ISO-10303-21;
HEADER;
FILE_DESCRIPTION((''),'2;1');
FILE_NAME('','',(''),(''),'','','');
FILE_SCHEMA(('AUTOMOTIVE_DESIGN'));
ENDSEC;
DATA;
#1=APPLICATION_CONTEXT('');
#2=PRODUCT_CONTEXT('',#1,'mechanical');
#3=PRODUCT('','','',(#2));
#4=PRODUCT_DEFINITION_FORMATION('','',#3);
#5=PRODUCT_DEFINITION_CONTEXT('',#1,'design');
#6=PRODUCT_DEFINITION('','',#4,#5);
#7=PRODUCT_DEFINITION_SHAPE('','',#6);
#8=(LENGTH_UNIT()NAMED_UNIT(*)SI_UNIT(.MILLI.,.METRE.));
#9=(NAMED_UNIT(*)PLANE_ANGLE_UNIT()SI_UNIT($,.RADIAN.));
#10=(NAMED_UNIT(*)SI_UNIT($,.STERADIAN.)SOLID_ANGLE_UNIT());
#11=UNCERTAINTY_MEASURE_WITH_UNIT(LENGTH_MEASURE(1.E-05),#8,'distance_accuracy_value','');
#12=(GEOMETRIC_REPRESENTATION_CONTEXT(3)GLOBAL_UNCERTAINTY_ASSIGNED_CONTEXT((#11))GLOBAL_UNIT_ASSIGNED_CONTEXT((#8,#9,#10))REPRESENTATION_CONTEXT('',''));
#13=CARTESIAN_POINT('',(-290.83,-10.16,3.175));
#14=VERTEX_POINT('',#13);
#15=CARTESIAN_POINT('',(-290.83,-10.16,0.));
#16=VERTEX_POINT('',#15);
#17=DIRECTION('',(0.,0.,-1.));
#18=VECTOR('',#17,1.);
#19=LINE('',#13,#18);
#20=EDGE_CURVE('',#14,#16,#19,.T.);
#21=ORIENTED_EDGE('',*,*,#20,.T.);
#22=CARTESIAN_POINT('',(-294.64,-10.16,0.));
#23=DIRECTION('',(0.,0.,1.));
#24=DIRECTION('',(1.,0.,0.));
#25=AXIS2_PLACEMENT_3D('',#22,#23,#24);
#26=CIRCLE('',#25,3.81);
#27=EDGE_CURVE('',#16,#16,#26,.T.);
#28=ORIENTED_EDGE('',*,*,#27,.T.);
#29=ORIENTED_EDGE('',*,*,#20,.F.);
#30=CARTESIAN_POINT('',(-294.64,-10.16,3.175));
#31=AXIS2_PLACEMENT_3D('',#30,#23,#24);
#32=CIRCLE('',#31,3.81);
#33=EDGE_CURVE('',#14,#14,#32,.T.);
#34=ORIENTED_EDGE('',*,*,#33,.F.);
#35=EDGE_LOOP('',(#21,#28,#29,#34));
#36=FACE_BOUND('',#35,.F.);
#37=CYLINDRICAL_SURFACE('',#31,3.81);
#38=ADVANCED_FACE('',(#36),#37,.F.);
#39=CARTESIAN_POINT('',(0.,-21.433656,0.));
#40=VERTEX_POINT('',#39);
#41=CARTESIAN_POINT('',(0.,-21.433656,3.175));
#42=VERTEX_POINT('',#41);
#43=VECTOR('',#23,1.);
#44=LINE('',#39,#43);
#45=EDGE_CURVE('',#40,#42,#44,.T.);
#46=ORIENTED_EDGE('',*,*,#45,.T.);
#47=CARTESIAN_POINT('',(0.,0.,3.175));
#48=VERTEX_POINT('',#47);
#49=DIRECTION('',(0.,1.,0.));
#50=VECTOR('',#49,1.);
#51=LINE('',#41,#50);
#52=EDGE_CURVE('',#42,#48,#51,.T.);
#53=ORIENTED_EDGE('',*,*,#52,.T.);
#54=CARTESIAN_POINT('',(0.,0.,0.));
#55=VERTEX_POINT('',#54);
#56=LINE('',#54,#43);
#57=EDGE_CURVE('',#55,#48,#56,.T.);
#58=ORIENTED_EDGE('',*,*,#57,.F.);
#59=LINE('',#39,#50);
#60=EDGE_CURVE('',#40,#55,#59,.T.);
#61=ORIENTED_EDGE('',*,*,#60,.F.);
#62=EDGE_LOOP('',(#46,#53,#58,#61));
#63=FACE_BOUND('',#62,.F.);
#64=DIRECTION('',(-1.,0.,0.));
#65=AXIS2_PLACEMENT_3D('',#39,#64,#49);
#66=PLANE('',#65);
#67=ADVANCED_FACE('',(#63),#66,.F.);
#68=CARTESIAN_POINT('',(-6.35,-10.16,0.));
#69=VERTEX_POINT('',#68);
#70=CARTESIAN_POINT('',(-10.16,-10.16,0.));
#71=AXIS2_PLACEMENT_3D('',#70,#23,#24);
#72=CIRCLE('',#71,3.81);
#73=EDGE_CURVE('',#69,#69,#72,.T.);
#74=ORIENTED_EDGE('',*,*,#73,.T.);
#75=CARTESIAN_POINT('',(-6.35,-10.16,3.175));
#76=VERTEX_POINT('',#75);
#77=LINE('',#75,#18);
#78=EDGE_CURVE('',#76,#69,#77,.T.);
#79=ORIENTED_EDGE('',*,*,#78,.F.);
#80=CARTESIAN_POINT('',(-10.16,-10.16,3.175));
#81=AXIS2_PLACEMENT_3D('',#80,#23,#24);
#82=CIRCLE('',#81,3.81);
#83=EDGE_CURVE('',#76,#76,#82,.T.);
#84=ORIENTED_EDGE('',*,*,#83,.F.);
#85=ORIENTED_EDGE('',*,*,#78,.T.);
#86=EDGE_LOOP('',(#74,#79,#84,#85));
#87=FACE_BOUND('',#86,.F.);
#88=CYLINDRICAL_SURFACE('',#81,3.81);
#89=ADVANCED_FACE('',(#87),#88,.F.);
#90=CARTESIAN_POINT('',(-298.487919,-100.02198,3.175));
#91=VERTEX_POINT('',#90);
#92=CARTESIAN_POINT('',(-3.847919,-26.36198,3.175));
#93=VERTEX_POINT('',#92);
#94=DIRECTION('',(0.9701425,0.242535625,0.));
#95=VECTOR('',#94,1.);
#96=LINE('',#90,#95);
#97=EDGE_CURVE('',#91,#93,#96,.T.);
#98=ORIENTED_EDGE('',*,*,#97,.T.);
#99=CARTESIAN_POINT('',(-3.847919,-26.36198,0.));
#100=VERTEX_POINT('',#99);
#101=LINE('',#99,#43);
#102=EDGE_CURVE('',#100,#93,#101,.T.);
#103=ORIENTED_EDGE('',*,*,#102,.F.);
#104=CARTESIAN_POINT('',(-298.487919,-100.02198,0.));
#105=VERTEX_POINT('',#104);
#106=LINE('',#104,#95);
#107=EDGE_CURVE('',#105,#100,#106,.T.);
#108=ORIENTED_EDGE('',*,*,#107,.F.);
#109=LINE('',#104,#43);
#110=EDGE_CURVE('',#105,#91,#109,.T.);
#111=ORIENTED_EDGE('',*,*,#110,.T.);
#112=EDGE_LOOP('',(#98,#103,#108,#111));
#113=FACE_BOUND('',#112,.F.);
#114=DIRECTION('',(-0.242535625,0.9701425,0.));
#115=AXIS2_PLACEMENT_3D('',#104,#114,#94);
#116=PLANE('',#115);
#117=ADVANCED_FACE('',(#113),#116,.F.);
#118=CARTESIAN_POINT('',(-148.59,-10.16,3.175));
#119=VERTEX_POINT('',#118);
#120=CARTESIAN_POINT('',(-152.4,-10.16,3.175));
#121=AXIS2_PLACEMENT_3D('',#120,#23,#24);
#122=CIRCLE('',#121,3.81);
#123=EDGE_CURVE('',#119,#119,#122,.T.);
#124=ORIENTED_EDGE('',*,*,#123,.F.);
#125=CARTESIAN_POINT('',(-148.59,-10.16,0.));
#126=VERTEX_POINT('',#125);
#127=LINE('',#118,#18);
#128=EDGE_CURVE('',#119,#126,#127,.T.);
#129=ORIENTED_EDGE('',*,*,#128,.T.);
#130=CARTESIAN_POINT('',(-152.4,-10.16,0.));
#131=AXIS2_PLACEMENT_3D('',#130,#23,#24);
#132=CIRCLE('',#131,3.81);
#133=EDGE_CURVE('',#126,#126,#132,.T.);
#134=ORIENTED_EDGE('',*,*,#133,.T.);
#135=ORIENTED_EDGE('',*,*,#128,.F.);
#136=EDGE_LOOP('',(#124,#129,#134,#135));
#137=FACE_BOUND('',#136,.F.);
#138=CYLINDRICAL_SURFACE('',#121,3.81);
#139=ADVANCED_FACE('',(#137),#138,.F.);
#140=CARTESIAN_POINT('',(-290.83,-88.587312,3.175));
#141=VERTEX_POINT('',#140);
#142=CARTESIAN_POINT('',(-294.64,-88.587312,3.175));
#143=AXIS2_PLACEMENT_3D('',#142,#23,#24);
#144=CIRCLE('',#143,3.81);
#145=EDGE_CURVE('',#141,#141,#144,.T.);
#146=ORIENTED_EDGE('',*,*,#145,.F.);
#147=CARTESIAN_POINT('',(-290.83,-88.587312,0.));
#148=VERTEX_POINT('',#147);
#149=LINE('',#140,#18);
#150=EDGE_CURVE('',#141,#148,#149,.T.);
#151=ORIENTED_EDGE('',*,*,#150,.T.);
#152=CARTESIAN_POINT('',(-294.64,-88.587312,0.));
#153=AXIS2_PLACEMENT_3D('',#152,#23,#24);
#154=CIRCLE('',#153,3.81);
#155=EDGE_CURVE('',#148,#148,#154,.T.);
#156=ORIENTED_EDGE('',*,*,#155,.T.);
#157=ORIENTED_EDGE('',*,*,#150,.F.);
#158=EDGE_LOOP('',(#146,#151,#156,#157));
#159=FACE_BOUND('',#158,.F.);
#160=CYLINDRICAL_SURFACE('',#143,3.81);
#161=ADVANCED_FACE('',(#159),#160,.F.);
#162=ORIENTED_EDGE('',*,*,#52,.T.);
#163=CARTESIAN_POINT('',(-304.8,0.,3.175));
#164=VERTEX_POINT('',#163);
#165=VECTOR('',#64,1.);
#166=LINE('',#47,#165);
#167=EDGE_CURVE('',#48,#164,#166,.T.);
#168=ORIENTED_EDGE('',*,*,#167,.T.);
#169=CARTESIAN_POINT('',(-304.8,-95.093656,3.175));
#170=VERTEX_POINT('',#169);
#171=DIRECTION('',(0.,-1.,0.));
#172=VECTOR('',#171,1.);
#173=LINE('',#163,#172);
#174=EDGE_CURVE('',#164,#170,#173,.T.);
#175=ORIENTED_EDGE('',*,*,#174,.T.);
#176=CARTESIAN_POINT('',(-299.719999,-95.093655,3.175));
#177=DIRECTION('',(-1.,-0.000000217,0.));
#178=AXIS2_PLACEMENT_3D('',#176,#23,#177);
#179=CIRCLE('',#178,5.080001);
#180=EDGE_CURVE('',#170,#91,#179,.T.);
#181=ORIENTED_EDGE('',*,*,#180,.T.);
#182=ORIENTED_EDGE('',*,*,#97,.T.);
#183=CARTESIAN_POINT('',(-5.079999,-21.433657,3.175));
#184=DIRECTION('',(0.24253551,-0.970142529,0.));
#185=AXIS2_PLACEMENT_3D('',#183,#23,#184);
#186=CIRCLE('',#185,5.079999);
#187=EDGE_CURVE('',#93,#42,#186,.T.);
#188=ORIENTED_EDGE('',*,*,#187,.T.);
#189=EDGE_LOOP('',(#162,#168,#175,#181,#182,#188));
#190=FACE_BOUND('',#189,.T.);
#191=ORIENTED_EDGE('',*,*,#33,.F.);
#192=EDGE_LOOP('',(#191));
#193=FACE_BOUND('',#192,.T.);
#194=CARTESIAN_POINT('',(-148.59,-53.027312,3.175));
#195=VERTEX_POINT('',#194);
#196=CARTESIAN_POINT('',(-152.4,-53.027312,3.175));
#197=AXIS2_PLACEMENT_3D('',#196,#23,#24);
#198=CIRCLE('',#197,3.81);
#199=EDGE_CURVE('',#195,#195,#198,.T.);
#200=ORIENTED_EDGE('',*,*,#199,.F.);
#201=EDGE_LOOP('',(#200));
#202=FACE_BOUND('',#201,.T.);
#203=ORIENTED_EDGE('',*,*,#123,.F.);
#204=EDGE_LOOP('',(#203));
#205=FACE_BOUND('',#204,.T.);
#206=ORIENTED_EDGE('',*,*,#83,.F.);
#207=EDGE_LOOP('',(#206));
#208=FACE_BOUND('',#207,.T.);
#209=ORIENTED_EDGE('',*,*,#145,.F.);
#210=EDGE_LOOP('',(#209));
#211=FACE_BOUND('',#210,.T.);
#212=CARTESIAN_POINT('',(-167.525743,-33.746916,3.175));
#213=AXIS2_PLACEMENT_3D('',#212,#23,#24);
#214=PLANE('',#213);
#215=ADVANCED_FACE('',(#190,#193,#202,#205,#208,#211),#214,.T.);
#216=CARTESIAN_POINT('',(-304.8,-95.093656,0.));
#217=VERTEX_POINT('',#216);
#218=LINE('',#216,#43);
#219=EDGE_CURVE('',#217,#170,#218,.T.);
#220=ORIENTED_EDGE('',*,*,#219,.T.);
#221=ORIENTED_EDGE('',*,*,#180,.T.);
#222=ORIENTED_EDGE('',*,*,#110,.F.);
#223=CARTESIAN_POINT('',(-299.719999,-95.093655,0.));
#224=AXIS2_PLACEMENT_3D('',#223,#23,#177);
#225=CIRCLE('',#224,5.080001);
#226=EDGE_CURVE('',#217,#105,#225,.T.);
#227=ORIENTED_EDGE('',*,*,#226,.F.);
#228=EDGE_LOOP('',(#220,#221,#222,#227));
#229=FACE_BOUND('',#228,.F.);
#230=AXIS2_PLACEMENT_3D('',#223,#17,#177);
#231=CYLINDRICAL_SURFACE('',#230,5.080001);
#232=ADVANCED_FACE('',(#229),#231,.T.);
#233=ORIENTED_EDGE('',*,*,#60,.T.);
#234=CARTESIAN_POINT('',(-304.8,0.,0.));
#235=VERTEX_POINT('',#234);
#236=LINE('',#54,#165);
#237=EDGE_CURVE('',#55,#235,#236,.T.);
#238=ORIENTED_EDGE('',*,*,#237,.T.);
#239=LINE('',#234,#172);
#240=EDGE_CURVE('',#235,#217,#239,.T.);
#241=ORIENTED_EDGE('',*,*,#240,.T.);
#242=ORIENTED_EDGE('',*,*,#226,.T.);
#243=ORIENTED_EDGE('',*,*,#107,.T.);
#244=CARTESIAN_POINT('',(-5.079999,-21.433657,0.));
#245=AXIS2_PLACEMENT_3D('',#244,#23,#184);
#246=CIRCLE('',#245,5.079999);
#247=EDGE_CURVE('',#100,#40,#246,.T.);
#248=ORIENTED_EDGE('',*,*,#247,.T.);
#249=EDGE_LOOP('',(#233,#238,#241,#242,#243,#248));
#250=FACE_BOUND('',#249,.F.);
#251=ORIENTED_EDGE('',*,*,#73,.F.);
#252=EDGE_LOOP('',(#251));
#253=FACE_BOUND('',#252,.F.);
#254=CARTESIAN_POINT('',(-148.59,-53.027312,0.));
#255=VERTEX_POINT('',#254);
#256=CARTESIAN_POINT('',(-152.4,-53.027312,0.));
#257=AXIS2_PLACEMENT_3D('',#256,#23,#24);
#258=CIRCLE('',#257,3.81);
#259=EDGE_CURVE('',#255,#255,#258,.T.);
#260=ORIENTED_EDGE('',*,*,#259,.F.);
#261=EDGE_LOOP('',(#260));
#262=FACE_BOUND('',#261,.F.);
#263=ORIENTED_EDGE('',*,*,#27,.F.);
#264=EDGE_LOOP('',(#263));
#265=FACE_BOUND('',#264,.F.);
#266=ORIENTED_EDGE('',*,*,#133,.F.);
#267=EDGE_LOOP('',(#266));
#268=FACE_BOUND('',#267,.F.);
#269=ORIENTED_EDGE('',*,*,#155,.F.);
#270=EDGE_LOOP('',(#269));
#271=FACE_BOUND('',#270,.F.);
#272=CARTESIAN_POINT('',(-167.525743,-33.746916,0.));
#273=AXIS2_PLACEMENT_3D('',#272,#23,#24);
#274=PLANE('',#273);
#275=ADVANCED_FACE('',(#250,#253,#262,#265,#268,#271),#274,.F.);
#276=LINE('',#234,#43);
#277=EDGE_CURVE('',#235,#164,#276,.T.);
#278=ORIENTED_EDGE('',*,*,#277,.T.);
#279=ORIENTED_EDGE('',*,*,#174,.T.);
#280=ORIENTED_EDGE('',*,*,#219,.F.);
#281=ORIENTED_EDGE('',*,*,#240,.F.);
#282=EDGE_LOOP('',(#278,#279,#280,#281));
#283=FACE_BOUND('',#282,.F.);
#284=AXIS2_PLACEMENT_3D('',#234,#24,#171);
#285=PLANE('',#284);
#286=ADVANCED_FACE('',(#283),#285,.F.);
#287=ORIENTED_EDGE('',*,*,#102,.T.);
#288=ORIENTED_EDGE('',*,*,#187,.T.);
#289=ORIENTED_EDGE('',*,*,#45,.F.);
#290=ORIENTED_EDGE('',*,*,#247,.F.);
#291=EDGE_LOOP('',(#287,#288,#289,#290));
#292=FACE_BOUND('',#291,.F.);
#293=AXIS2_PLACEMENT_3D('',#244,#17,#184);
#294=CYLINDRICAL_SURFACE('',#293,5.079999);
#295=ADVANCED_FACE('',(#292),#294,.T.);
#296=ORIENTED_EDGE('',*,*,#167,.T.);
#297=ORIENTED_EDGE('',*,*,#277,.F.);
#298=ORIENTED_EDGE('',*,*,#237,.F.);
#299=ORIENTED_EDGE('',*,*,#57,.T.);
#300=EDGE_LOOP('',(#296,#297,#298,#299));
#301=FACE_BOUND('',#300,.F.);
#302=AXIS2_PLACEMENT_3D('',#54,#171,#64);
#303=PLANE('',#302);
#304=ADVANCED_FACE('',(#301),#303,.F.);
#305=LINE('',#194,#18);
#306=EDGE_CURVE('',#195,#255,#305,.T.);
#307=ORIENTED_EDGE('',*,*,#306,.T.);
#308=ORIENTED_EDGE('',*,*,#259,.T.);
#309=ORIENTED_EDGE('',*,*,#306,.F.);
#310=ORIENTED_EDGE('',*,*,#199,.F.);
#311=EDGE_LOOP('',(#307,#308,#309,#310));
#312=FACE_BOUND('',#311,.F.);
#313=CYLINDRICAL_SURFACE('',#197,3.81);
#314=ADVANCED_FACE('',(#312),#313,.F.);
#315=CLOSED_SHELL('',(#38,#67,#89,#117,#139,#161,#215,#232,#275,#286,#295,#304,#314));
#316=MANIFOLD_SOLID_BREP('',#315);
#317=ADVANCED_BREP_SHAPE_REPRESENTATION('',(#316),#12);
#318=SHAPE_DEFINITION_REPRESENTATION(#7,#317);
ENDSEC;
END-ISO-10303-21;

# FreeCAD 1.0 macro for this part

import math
import FreeCAD as App
import Part
import Sketcher
from FreeCAD import Vector
Q = App.Units.Quantity

doc = App.newDocument("Part")
body = doc.addObject("PartDesign::Body", "Body")

sketch1 = body.newObject("Sketcher::SketchObject", "Sketch")
sketch1.AttachmentSupport = (doc.getObject("XY_Plane"), [""])
sketch1.MapMode = "FlatFace"
sketch1.addGeometry([
    Part.LineSegment(Vector(0, -21, 0), Vector(0, 0, 0)),
    Part.LineSegment(Vector(0, 0, 0), Vector(-305, 0, 0)),
    Part.LineSegment(Vector(-305, 0, 0), Vector(-305, -95, 0)),
    Part.ArcOfCircle(Part.Circle(Vector(-300, -95, 0), Vector(0, 0, 1), 5), math.radians(-180), math.radians(-76)),
    Part.LineSegment(Vector(-298, -100, 0), Vector(-4, -26, 0)),
    Part.ArcOfCircle(Part.Circle(Vector(-5, -21, 0), Vector(0, 0, 1), 5), math.radians(-76), math.radians(0)),
], False)
sketch1.addConstraint([
    Sketcher.Constraint("Coincident", 0, 2, 1, 1),
    Sketcher.Constraint("Coincident", 1, 2, 2, 1),
    Sketcher.Constraint("Tangent", 2, 2, 3, 1),
    Sketcher.Constraint("Tangent", 3, 2, 4, 1),
    Sketcher.Constraint("Tangent", 4, 2, 5, 1),
    Sketcher.Constraint("Tangent", 5, 2, 0, 1),
    Sketcher.Constraint("Vertical", 0),
    Sketcher.Constraint("Horizontal", 1),
    Sketcher.Constraint("Vertical", 2),
    Sketcher.Constraint("Coincident", 0, 2, -1, 1),
    Sketcher.Constraint("Equal", 3, 5),
    Sketcher.Constraint("Radius", 3, Q("0.2 in")),
    Sketcher.Constraint("DistanceX", 1, 2, 1, 1, Q("12 in")),
    Sketcher.Constraint("DistanceY", 3, 3, 5, 3, Q("2.8999999 in")),
    Sketcher.Constraint("DistanceY", 0, 1, 0, 2, Q("21.433656 mm")),
])
pad1 = body.newObject("PartDesign::Pad", "Pad")
pad1.Profile = sketch1
pad1.Length = Q("0.125 in")

sketch2 = body.newObject("Sketcher::SketchObject", "Sketch001")
sketch2.AttachmentSupport = (doc.getObject("XY_Plane"), [""])
sketch2.MapMode = "FlatFace"
sketch2.AttachmentOffset = App.Placement(Vector(0, 0, 0.125 * 25.4), App.Rotation())
sketch2.addGeometry([
    Part.Circle(Vector(-294.6, -10.2, 0), Vector(0, 0, 1), 3.8),
    Part.Circle(Vector(-152.4, -10.2, 0), Vector(0, 0, 1), 3.8),
    Part.Circle(Vector(-152.4, -53, 0), Vector(0, 0, 1), 3.8),
    Part.Circle(Vector(-294.6, -88.6, 0), Vector(0, 0, 1), 3.8),
    Part.Circle(Vector(-10.2, -10.2, 0), Vector(0, 0, 1), 3.8),
], False)
sketch2.addConstraint([
    Sketcher.Constraint("Equal", 0, 1),
    Sketcher.Constraint("Equal", 1, 2),
    Sketcher.Constraint("Equal", 2, 3),
    Sketcher.Constraint("Equal", 3, 4),
    Sketcher.Constraint("Horizontal", 0, 3, 1, 3),
    Sketcher.Constraint("Horizontal", 1, 3, 4, 3),
    Sketcher.Constraint("Vertical", 1, 3, 2, 3),
    Sketcher.Constraint("Vertical", 0, 3, 3, 3),
    Sketcher.Constraint("Diameter", 0, Q("0.3 in")),
    Sketcher.Constraint("DistanceX", 1, 3, -1, 1, Q("6 in")),
    Sketcher.Constraint("DistanceX", 0, 3, -1, 1, Q("11.6 in")),
    Sketcher.Constraint("DistanceY", 0, 3, -1, 1, Q("0.4 in")),
    Sketcher.Constraint("DistanceX", 4, 3, -1, 1, Q("0.4 in")),
    Sketcher.Constraint("DistanceY", 3, 3, 2, 3, Q("1.4 in")),
    Sketcher.Constraint("DistanceY", 3, 3, -1, 1, Q("88.587312 mm")),
])
pocket1 = body.newObject("PartDesign::Pocket", "Pocket")
pocket1.Profile = sketch2
pocket1.Length = Q("1 in")

doc.recompute()
